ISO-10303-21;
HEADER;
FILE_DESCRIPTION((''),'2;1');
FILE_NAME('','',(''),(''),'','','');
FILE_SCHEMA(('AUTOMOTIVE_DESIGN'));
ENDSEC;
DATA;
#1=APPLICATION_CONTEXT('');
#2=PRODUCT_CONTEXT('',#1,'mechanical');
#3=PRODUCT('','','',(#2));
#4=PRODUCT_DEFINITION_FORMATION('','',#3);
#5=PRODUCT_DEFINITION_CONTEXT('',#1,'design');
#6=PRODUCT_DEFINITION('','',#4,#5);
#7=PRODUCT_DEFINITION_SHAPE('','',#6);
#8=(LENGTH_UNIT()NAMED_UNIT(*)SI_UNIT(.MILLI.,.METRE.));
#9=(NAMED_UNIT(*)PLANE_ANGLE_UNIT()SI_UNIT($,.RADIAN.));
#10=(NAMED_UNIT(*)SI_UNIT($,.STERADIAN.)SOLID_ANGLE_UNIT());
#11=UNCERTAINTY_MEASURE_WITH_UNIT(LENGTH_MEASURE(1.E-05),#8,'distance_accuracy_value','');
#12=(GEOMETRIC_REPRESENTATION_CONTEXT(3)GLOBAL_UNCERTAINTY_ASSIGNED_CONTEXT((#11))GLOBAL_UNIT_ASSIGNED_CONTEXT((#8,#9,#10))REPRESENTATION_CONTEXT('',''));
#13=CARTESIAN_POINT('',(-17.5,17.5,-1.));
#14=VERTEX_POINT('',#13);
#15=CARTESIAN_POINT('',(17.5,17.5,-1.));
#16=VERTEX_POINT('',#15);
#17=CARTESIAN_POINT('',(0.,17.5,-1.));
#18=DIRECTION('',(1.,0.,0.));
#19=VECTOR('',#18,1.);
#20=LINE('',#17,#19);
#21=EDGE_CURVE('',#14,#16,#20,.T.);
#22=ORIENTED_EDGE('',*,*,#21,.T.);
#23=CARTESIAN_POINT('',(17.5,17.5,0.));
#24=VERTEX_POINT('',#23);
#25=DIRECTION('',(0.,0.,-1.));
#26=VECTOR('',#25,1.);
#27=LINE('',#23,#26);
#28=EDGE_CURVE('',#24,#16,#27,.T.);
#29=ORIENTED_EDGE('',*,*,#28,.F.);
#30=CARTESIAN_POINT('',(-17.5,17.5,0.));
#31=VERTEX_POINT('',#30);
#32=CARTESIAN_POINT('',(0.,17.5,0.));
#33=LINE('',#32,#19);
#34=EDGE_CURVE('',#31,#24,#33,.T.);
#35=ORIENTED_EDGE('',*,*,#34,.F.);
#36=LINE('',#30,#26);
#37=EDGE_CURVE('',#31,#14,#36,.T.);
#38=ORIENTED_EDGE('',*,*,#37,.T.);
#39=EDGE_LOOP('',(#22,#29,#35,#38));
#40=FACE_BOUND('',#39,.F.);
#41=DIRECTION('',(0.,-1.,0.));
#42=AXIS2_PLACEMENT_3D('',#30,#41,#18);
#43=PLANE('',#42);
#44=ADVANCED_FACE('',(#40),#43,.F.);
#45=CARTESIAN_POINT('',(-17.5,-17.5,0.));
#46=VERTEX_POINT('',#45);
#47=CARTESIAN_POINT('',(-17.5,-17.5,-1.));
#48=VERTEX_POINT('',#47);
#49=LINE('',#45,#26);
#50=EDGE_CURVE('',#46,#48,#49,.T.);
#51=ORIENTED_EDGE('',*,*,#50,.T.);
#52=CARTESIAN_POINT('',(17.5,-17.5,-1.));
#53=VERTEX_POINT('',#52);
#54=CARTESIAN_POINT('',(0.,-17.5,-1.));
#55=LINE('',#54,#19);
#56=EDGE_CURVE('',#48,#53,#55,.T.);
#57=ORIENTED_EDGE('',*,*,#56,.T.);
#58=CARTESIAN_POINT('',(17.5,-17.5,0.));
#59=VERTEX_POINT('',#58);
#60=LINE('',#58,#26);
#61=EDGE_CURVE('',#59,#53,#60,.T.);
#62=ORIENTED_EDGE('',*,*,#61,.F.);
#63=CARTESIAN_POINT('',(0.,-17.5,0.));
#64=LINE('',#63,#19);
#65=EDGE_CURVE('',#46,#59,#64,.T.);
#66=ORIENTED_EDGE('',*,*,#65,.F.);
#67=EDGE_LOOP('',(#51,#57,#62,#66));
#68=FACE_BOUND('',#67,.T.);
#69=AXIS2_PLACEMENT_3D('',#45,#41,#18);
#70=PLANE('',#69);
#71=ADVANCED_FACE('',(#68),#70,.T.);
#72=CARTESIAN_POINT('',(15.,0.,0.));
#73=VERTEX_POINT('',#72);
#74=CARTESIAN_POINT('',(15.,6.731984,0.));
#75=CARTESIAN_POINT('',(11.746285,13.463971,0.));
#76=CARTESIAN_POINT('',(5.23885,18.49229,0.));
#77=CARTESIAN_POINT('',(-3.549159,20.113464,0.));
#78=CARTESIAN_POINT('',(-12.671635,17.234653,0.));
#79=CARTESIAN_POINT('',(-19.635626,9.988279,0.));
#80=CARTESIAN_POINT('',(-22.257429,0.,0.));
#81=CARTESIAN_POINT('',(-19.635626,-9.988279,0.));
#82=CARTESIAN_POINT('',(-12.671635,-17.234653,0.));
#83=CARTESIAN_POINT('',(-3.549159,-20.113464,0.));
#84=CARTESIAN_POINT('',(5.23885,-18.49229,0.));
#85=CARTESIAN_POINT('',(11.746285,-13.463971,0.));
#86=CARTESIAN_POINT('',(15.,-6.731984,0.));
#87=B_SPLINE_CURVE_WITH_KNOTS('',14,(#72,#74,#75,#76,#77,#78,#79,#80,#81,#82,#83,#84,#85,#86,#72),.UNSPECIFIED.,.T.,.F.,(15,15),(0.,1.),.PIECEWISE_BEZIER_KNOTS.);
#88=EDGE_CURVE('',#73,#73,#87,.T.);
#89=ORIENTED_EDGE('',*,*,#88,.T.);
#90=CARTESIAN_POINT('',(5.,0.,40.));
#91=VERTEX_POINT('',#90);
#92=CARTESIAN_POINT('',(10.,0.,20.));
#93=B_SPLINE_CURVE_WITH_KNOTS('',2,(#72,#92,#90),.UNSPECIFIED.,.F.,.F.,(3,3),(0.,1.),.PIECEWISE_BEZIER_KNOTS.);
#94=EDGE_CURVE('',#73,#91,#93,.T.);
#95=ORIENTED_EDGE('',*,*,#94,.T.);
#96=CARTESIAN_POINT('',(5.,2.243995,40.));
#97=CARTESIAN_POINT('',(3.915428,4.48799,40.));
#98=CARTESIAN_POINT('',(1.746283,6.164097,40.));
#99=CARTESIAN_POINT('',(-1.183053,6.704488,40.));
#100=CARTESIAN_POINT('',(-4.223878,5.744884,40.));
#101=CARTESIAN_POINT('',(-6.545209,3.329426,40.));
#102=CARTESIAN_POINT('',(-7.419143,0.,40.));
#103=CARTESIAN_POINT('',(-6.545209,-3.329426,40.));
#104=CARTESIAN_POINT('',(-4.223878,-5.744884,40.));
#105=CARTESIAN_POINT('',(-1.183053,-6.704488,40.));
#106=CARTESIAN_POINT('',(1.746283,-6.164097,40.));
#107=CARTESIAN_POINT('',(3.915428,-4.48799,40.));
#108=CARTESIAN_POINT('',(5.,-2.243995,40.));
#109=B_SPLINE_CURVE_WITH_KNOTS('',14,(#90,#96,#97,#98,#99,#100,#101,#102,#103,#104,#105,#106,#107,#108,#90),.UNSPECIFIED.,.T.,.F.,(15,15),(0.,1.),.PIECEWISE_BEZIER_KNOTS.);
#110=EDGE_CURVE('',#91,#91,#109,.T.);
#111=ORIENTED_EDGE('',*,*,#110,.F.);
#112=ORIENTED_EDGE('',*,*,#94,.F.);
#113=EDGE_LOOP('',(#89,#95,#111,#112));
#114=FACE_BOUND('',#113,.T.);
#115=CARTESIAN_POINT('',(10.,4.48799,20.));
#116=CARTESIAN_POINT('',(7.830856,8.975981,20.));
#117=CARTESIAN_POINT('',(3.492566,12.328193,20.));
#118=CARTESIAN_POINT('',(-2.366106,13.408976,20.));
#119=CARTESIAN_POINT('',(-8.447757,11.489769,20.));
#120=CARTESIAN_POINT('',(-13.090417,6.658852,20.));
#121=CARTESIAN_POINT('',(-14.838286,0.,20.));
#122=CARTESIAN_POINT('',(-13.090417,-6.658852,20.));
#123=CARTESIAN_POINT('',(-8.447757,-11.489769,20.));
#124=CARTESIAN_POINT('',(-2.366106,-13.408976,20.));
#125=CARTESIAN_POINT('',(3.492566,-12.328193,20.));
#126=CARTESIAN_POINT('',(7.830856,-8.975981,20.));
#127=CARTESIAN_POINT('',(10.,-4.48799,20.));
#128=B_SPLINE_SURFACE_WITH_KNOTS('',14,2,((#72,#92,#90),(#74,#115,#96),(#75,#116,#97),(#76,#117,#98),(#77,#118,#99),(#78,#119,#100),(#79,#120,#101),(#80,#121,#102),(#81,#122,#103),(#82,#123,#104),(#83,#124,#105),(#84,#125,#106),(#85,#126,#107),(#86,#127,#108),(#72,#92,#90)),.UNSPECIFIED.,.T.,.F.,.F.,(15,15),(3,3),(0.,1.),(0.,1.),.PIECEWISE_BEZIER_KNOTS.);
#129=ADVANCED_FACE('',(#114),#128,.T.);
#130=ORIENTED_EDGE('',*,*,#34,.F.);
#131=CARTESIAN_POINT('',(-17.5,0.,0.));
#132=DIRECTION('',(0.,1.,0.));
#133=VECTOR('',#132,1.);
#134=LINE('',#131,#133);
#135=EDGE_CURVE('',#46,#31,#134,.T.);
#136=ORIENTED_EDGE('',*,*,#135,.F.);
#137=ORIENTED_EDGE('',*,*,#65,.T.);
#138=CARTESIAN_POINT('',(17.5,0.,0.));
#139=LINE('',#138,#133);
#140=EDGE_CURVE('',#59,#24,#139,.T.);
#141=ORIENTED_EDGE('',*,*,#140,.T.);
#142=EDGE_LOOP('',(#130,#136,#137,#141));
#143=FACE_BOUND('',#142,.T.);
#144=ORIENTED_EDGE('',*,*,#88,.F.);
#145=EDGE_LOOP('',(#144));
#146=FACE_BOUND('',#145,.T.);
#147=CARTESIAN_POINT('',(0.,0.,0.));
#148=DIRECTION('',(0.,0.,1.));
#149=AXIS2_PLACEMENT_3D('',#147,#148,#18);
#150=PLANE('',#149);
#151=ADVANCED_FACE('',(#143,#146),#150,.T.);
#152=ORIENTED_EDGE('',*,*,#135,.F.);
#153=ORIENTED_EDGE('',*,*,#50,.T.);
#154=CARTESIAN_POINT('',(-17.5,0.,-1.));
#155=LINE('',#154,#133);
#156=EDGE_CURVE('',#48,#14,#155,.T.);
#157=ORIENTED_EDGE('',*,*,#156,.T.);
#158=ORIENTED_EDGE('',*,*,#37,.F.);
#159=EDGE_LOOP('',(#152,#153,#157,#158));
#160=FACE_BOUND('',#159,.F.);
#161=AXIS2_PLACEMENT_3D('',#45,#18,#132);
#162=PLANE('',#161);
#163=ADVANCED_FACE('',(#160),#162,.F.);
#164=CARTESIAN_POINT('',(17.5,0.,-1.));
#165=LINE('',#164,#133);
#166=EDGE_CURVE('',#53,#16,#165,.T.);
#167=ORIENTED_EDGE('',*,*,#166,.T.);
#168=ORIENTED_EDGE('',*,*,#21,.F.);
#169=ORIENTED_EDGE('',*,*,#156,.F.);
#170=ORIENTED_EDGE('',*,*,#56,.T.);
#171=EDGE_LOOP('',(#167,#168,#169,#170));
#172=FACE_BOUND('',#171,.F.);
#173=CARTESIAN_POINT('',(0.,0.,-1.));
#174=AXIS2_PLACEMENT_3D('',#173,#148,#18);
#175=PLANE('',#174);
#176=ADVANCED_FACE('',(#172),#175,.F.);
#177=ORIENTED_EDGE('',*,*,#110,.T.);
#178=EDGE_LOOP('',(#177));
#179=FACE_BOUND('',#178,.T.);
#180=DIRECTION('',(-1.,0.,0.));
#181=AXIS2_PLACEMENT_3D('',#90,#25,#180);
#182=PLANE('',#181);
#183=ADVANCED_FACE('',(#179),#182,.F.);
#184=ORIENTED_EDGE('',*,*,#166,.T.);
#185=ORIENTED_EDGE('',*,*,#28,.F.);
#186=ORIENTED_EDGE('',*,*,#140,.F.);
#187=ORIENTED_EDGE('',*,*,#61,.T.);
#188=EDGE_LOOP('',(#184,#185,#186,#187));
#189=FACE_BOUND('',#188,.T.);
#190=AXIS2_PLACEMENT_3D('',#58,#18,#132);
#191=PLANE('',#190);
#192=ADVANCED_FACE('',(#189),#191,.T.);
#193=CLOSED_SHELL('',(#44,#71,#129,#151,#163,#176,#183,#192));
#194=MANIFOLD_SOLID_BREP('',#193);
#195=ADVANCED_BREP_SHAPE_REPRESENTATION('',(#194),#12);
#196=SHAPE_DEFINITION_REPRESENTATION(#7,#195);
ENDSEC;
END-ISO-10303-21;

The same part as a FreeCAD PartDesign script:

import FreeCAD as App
import Part
import Sketcher

V = App.Vector
Q = App.Units.Quantity


def add_polygon(sketch, points):
    """Adds a closed chain of lines whose ends are joined by coincident constraints."""
    first, n = sketch.GeometryCount, len(points)
    for a, b in zip(points, points[1:] + points[:1]):
        sketch.addGeometry(Part.LineSegment(App.Vector(*a, 0), App.Vector(*b, 0)), False)
    for i in range(n):
        sketch.addConstraint(Sketcher.Constraint("Coincident", first + i, 2, first + (i + 1) % n, 1))

doc = App.newDocument("Part")
body = doc.addObject("PartDesign::Body", "Body")

# Sketch on XY plane
sketch1 = doc.addObject("Sketcher::SketchObject", "Sketch")
body.addObject(sketch1)
sketch1.AttachmentSupport = (doc.XY_Plane, [""])
sketch1.MapMode = "FlatFace"
sketch1.addGeometry(Part.Circle(V(0, 0, 0), V(0, 0, 1), 15), False)
sketch1.addConstraint([
    Sketcher.Constraint("Coincident", 0, 3, -1, 1),
    Sketcher.Constraint("Diameter", 0, Q("30 mm")),
])

# Sketch on XY plane
sketch2 = doc.addObject("Sketcher::SketchObject", "Sketch001")
body.addObject(sketch2)
sketch2.AttachmentSupport = (doc.XY_Plane, [""])
sketch2.MapMode = "FlatFace"
sketch2.AttachmentOffset = App.Placement(V(0, 0, 10), App.Rotation())
sketch2.addGeometry(Part.Circle(V(0, 0, 0), V(0, 0, 1), 12), False)
sketch2.addConstraint([
    Sketcher.Constraint("Coincident", 0, 3, -1, 1),
    Sketcher.Constraint("Diameter", 0, Q("25 mm")),
])

# Sketch on XY plane
sketch3 = doc.addObject("Sketcher::SketchObject", "Sketch002")
body.addObject(sketch3)
sketch3.AttachmentSupport = (doc.XY_Plane, [""])
sketch3.MapMode = "FlatFace"
sketch3.AttachmentOffset = App.Placement(V(0, 0, 20), App.Rotation())
sketch3.addGeometry(Part.Circle(V(0, 0, 0), V(0, 0, 1), 10), False)
sketch3.addConstraint([
    Sketcher.Constraint("Coincident", 0, 3, -1, 1),
    Sketcher.Constraint("Diameter", 0, Q("20 mm")),
])

# Sketch on XY plane
sketch4 = doc.addObject("Sketcher::SketchObject", "Sketch003")
body.addObject(sketch4)
sketch4.AttachmentSupport = (doc.XY_Plane, [""])
sketch4.MapMode = "FlatFace"
sketch4.AttachmentOffset = App.Placement(V(0, 0, 30), App.Rotation())
sketch4.addGeometry(Part.Circle(V(0, 0, 0), V(0, 0, 1), 8), False)
sketch4.addConstraint([
    Sketcher.Constraint("Coincident", 0, 3, -1, 1),
    Sketcher.Constraint("Diameter", 0, Q("15 mm")),
])

# Sketch on XY plane
sketch5 = doc.addObject("Sketcher::SketchObject", "Sketch004")
body.addObject(sketch5)
sketch5.AttachmentSupport = (doc.XY_Plane, [""])
sketch5.MapMode = "FlatFace"
sketch5.AttachmentOffset = App.Placement(V(0, 0, 40), App.Rotation())
sketch5.addGeometry(Part.Circle(V(0, 0, 0), V(0, 0, 1), 5), False)
sketch5.addConstraint([
    Sketcher.Constraint("Coincident", 0, 3, -1, 1),
    Sketcher.Constraint("Diameter", 0, Q("10 mm")),
])

additiveloft = doc.addObject("PartDesign::AdditiveLoft", "AdditiveLoft")
body.addObject(additiveloft)
additiveloft.Profile = sketch1
additiveloft.Sections = [sketch2, sketch3, sketch4, sketch5]

# Sketch on XY plane
sketch6 = doc.addObject("Sketcher::SketchObject", "Sketch005")
body.addObject(sketch6)
sketch6.AttachmentSupport = (doc.XY_Plane, [""])
sketch6.MapMode = "FlatFace"
add_polygon(sketch6, [(-18, 18), (-18, -18), (18, -18), (18, 18)])  # lines 0-3
sketch6.addConstraint([
    Sketcher.Constraint("Vertical", 0),
    Sketcher.Constraint("Horizontal", 1),
    Sketcher.Constraint("Vertical", 2),
    Sketcher.Constraint("Horizontal", 3),
    Sketcher.Constraint("Symmetric", 0, 2, 2, 2, -1, 1),
    Sketcher.Constraint("Equal", 3, 0),
    Sketcher.Constraint("DistanceX", 1, 1, 1, 2, Q("35 mm")),
])
pad1 = doc.addObject("PartDesign::Pad", "Pad")
body.addObject(pad1)
pad1.Profile = sketch6
pad1.Length = 1
pad1.Reversed = True

doc.recompute()
